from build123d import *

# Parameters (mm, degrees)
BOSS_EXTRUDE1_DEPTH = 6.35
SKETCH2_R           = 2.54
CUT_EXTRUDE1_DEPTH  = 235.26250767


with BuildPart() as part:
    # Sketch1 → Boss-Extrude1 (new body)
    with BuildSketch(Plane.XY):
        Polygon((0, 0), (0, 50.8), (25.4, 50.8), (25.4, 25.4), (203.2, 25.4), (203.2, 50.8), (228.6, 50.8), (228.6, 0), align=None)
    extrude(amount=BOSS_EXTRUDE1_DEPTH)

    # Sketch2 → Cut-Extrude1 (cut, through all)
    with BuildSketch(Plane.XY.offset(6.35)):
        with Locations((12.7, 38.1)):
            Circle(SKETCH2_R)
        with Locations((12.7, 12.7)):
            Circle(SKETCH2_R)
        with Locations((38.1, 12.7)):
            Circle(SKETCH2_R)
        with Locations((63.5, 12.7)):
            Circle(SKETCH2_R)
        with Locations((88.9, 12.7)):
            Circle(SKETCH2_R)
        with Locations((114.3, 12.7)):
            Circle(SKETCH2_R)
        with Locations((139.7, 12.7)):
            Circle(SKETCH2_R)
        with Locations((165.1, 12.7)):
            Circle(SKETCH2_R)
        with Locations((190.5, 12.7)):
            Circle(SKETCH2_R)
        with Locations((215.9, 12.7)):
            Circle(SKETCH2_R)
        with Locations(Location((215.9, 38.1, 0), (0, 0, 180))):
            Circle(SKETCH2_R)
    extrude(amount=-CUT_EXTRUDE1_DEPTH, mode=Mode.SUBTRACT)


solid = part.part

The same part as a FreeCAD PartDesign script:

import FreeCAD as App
import Part
import Sketcher
Q = App.Units.Quantity


def add_polygon(sketch, points):
    """Adds a closed chain of lines whose ends are joined by coincident constraints."""
    first, n = sketch.GeometryCount, len(points)
    for a, b in zip(points, points[1:] + points[:1]):
        sketch.addGeometry(Part.LineSegment(App.Vector(*a, 0), App.Vector(*b, 0)), False)
    for i in range(n):
        sketch.addConstraint(Sketcher.Constraint("Coincident", first + i, 2, first + (i + 1) % n, 1))

doc = App.newDocument("Part")
body = doc.addObject("PartDesign::Body", "Body")

# Sketch on XY plane
sketch1 = body.newObject("Sketcher::SketchObject", "Sketch")
sketch1.AttachmentSupport = (doc.getObject("XY_Plane"), [""])
sketch1.MapMode = "FlatFace"
add_polygon(sketch1, [(0, 50.8), (0, 0), (228.6, 0), (228.6, 50.8), (203.2, 50.8), (203.2, 25.4), (25.4, 25.4), (25.4, 50.8)])  # lines 0-7
sketch1.addConstraint([
    Sketcher.Constraint("Vertical", 0),
    Sketcher.Constraint("Horizontal", 1),
    Sketcher.Constraint("Vertical", 2),
    Sketcher.Constraint("Horizontal", 3),
    Sketcher.Constraint("Vertical", 4),
    Sketcher.Constraint("Horizontal", 5),
    Sketcher.Constraint("Vertical", 6),
    Sketcher.Constraint("Horizontal", 7),
    Sketcher.Constraint("Coincident", 0, 2, -1, 1),
    Sketcher.Constraint("Horizontal", 3, 2, 6, 2),
    Sketcher.Constraint("Equal", 3, 7),
    Sketcher.Constraint("Equal", 7, 4),
    Sketcher.Constraint("DistanceX", 1, 1, 1, 2, Q("9 in")),
    Sketcher.Constraint("DistanceX", 3, 2, 3, 1, Q("1 in")),
    Sketcher.Constraint("DistanceY", 0, 2, 0, 1, Q("2 in")),
])
pad1 = body.newObject("PartDesign::Pad", "Pad")
pad1.Profile = sketch1
pad1.Length = Q("0.25 in")

# Sketch on XY plane
sketch2 = body.newObject("Sketcher::SketchObject", "Sketch001")
sketch2.AttachmentSupport = (doc.getObject("XY_Plane"), [""])
sketch2.MapMode = "FlatFace"
sketch2.AttachmentOffset = App.Placement(App.Vector(0, 0, 0.25 * 25.4), App.Rotation())
sketch2.addGeometry([
    Part.Circle(App.Vector(12.7, 38.1, 0), App.Vector(0, 0, 1), 2.54),  # 0
    Part.Circle(App.Vector(12.7, 12.7, 0), App.Vector(0, 0, 1), 2.54),  # 1
    Part.Circle(App.Vector(38.1, 12.7, 0), App.Vector(0, 0, 1), 2.54),  # 2
    Part.Circle(App.Vector(63.5, 12.7, 0), App.Vector(0, 0, 1), 2.54),  # 3
    Part.Circle(App.Vector(88.9, 12.7, 0), App.Vector(0, 0, 1), 2.54),  # 4
    Part.Circle(App.Vector(114.3, 12.7, 0), App.Vector(0, 0, 1), 2.54),  # 5
    Part.Circle(App.Vector(139.7, 12.7, 0), App.Vector(0, 0, 1), 2.54),  # 6
    Part.Circle(App.Vector(165.1, 12.7, 0), App.Vector(0, 0, 1), 2.54),  # 7
    Part.Circle(App.Vector(190.5, 12.7, 0), App.Vector(0, 0, 1), 2.54),  # 8
    Part.Circle(App.Vector(215.9, 12.7, 0), App.Vector(0, 0, 1), 2.54),  # 9
    Part.Circle(App.Vector(215.9, 38.1, 0), App.Vector(0, 0, 1), 2.54),  # 10
], False)
sketch2.addConstraint([
    Sketcher.Constraint("Equal", 0, 1),
    Sketcher.Constraint("Equal", 1, 2),
    Sketcher.Constraint("Equal", 2, 3),
    Sketcher.Constraint("Equal", 3, 4),
    Sketcher.Constraint("Equal", 4, 5),
    Sketcher.Constraint("Equal", 5, 6),
    Sketcher.Constraint("Equal", 6, 7),
    Sketcher.Constraint("Equal", 7, 8),
    Sketcher.Constraint("Equal", 8, 9),
    Sketcher.Constraint("Equal", 9, 10),
    Sketcher.Constraint("Horizontal", 1, 3, 2, 3),
    Sketcher.Constraint("Horizontal", 2, 3, 3, 3),
    Sketcher.Constraint("Horizontal", 3, 3, 4, 3),
    Sketcher.Constraint("Horizontal", 4, 3, 5, 3),
    Sketcher.Constraint("Horizontal", 5, 3, 6, 3),
    Sketcher.Constraint("Horizontal", 6, 3, 7, 3),
    Sketcher.Constraint("Horizontal", 7, 3, 8, 3),
    Sketcher.Constraint("Horizontal", 8, 3, 9, 3),
    Sketcher.Constraint("Horizontal", 0, 3, 10, 3),
    Sketcher.Constraint("Vertical", 0, 3, 1, 3),
    Sketcher.Constraint("Vertical", 9, 3, 10, 3),
    Sketcher.Constraint("Diameter", 0, Q("0.2 in")),
    Sketcher.Constraint("DistanceY", 1, 3, 0, 3, Q("1 in")),
    Sketcher.Constraint("DistanceX", 1, 3, 2, 3, Q("1 in")),
    Sketcher.Constraint("DistanceX", 2, 3, 3, 3, Q("1 in")),
    Sketcher.Constraint("DistanceX", 3, 3, 4, 3, Q("1 in")),
    Sketcher.Constraint("DistanceX", 4, 3, 5, 3, Q("1 in")),
    Sketcher.Constraint("DistanceX", 5, 3, 6, 3, Q("1 in")),
    Sketcher.Constraint("DistanceX", 6, 3, 7, 3, Q("1 in")),
    Sketcher.Constraint("DistanceX", 7, 3, 8, 3, Q("1 in")),
    Sketcher.Constraint("DistanceX", 8, 3, 9, 3, Q("1 in")),
    Sketcher.Constraint("DistanceX", -1, 1, 0, 3, Q("0.5 in")),
    Sketcher.Constraint("DistanceY", -1, 1, 0, 3, Q("1.5 in")),
])
pocket1 = body.newObject("PartDesign::Pocket", "Pocket")
pocket1.Profile = sketch2
pocket1.Type = "ThroughAll"

doc.recompute()
